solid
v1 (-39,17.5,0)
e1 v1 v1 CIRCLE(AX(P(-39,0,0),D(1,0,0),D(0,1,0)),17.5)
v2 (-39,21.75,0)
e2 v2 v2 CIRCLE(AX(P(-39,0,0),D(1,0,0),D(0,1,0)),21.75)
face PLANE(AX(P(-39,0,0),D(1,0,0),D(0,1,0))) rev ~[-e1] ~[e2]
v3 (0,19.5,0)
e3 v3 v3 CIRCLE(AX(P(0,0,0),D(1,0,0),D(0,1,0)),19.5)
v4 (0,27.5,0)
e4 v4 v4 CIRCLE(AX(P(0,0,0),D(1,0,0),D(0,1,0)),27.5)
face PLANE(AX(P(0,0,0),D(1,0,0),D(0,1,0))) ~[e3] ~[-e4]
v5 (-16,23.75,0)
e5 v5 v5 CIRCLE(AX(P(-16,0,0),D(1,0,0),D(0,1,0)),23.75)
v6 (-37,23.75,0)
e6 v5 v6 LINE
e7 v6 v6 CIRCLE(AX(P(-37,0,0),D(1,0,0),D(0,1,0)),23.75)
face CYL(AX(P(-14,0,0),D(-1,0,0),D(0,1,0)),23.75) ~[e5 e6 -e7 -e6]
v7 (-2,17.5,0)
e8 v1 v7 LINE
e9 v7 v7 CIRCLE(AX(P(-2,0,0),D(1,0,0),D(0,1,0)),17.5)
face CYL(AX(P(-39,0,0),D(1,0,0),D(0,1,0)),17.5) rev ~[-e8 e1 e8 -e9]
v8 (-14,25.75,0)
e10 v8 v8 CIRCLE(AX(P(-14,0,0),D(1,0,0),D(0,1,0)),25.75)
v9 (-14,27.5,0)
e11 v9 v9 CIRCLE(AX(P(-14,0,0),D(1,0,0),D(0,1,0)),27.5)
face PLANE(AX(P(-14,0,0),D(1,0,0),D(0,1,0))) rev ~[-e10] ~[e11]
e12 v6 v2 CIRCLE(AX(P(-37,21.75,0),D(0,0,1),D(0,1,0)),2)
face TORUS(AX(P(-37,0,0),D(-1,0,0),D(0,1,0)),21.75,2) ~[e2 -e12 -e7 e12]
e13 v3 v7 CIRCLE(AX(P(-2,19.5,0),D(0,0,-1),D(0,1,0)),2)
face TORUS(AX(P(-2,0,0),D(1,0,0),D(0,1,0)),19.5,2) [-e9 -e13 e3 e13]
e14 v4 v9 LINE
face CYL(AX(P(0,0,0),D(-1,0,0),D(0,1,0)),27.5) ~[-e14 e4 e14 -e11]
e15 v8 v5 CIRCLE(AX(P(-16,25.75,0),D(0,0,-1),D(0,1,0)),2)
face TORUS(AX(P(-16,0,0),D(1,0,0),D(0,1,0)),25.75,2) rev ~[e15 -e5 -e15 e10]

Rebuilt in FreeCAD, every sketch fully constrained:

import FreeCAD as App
import Part
import Sketcher

V = App.Vector


def edges_at(feature, points):
    """Names of the edges that pass closest to the given points."""
    edges = feature.Shape.Edges
    near = lambda p: min(range(len(edges)), key=lambda i: edges[i].distToShape(Part.Vertex(*p))[0])
    return sorted({f"Edge{near(p) + 1}" for p in points})


def add_polygon(sketch, points):
    """Adds a closed chain of lines whose ends are joined by coincident constraints."""
    first, n = sketch.GeometryCount, len(points)
    for a, b in zip(points, points[1:] + points[:1]):
        sketch.addGeometry(Part.LineSegment(App.Vector(*a, 0), App.Vector(*b, 0)), False)
    for i in range(n):
        sketch.addConstraint(Sketcher.Constraint("Coincident", first + i, 2, first + (i + 1) % n, 1))

doc = App.newDocument("Part")
body = doc.addObject("PartDesign::Body", "Body")

# Sketch on XY plane
sketch1 = body.newObject("Sketcher::SketchObject", "Sketch")
sketch1.AttachmentSupport = (doc.getObject("XY_Plane"), [""])
sketch1.MapMode = "FlatFace"
add_polygon(sketch1, [(0, 17.5), (0, 27.5), (-14, 27.5), (-14, 23.8), (-39, 23.8), (-39, 17.5)])  # lines 0-5
sketch1.addConstraint([
    Sketcher.Constraint("Vertical", 0),
    Sketcher.Constraint("Horizontal", 1),
    Sketcher.Constraint("Vertical", 2),
    Sketcher.Constraint("Horizontal", 3),
    Sketcher.Constraint("Vertical", 4),
    Sketcher.Constraint("Horizontal", 5),
    Sketcher.Constraint("PointOnObject", 0, 2, -2),
    Sketcher.Constraint("DistanceX", 1, 2, 1, 1, 14.0),
    Sketcher.Constraint("DistanceX", 3, 2, 3, 1, 25.0),
    Sketcher.Constraint("DistanceY", 0, 1, 0, 2, 10.0),
    Sketcher.Constraint("DistanceY", 2, 2, 2, 1, 3.75),
    Sketcher.Constraint("DistanceY", -1, 1, 0, 2, 27.5),
])
revolution = body.newObject("PartDesign::Revolution", "Revolution")
revolution.Profile = sketch1
revolution.ReferenceAxis = (sketch1, ["H_Axis"])
revolution.Angle = 360
doc.recompute()

fillet = body.newObject("PartDesign::Fillet", "Fillet")
fillet.Base = (revolution, edges_at(revolution, [(-14, -23.75, 0)]))
fillet.Radius = 2
doc.recompute()

fillet2 = body.newObject("PartDesign::Fillet", "Fillet001")
fillet2.Base = (fillet, edges_at(fillet, [(-39, -23.75, 0), (0, -17.5, 0)]))
fillet2.Radius = 2

doc.recompute()
